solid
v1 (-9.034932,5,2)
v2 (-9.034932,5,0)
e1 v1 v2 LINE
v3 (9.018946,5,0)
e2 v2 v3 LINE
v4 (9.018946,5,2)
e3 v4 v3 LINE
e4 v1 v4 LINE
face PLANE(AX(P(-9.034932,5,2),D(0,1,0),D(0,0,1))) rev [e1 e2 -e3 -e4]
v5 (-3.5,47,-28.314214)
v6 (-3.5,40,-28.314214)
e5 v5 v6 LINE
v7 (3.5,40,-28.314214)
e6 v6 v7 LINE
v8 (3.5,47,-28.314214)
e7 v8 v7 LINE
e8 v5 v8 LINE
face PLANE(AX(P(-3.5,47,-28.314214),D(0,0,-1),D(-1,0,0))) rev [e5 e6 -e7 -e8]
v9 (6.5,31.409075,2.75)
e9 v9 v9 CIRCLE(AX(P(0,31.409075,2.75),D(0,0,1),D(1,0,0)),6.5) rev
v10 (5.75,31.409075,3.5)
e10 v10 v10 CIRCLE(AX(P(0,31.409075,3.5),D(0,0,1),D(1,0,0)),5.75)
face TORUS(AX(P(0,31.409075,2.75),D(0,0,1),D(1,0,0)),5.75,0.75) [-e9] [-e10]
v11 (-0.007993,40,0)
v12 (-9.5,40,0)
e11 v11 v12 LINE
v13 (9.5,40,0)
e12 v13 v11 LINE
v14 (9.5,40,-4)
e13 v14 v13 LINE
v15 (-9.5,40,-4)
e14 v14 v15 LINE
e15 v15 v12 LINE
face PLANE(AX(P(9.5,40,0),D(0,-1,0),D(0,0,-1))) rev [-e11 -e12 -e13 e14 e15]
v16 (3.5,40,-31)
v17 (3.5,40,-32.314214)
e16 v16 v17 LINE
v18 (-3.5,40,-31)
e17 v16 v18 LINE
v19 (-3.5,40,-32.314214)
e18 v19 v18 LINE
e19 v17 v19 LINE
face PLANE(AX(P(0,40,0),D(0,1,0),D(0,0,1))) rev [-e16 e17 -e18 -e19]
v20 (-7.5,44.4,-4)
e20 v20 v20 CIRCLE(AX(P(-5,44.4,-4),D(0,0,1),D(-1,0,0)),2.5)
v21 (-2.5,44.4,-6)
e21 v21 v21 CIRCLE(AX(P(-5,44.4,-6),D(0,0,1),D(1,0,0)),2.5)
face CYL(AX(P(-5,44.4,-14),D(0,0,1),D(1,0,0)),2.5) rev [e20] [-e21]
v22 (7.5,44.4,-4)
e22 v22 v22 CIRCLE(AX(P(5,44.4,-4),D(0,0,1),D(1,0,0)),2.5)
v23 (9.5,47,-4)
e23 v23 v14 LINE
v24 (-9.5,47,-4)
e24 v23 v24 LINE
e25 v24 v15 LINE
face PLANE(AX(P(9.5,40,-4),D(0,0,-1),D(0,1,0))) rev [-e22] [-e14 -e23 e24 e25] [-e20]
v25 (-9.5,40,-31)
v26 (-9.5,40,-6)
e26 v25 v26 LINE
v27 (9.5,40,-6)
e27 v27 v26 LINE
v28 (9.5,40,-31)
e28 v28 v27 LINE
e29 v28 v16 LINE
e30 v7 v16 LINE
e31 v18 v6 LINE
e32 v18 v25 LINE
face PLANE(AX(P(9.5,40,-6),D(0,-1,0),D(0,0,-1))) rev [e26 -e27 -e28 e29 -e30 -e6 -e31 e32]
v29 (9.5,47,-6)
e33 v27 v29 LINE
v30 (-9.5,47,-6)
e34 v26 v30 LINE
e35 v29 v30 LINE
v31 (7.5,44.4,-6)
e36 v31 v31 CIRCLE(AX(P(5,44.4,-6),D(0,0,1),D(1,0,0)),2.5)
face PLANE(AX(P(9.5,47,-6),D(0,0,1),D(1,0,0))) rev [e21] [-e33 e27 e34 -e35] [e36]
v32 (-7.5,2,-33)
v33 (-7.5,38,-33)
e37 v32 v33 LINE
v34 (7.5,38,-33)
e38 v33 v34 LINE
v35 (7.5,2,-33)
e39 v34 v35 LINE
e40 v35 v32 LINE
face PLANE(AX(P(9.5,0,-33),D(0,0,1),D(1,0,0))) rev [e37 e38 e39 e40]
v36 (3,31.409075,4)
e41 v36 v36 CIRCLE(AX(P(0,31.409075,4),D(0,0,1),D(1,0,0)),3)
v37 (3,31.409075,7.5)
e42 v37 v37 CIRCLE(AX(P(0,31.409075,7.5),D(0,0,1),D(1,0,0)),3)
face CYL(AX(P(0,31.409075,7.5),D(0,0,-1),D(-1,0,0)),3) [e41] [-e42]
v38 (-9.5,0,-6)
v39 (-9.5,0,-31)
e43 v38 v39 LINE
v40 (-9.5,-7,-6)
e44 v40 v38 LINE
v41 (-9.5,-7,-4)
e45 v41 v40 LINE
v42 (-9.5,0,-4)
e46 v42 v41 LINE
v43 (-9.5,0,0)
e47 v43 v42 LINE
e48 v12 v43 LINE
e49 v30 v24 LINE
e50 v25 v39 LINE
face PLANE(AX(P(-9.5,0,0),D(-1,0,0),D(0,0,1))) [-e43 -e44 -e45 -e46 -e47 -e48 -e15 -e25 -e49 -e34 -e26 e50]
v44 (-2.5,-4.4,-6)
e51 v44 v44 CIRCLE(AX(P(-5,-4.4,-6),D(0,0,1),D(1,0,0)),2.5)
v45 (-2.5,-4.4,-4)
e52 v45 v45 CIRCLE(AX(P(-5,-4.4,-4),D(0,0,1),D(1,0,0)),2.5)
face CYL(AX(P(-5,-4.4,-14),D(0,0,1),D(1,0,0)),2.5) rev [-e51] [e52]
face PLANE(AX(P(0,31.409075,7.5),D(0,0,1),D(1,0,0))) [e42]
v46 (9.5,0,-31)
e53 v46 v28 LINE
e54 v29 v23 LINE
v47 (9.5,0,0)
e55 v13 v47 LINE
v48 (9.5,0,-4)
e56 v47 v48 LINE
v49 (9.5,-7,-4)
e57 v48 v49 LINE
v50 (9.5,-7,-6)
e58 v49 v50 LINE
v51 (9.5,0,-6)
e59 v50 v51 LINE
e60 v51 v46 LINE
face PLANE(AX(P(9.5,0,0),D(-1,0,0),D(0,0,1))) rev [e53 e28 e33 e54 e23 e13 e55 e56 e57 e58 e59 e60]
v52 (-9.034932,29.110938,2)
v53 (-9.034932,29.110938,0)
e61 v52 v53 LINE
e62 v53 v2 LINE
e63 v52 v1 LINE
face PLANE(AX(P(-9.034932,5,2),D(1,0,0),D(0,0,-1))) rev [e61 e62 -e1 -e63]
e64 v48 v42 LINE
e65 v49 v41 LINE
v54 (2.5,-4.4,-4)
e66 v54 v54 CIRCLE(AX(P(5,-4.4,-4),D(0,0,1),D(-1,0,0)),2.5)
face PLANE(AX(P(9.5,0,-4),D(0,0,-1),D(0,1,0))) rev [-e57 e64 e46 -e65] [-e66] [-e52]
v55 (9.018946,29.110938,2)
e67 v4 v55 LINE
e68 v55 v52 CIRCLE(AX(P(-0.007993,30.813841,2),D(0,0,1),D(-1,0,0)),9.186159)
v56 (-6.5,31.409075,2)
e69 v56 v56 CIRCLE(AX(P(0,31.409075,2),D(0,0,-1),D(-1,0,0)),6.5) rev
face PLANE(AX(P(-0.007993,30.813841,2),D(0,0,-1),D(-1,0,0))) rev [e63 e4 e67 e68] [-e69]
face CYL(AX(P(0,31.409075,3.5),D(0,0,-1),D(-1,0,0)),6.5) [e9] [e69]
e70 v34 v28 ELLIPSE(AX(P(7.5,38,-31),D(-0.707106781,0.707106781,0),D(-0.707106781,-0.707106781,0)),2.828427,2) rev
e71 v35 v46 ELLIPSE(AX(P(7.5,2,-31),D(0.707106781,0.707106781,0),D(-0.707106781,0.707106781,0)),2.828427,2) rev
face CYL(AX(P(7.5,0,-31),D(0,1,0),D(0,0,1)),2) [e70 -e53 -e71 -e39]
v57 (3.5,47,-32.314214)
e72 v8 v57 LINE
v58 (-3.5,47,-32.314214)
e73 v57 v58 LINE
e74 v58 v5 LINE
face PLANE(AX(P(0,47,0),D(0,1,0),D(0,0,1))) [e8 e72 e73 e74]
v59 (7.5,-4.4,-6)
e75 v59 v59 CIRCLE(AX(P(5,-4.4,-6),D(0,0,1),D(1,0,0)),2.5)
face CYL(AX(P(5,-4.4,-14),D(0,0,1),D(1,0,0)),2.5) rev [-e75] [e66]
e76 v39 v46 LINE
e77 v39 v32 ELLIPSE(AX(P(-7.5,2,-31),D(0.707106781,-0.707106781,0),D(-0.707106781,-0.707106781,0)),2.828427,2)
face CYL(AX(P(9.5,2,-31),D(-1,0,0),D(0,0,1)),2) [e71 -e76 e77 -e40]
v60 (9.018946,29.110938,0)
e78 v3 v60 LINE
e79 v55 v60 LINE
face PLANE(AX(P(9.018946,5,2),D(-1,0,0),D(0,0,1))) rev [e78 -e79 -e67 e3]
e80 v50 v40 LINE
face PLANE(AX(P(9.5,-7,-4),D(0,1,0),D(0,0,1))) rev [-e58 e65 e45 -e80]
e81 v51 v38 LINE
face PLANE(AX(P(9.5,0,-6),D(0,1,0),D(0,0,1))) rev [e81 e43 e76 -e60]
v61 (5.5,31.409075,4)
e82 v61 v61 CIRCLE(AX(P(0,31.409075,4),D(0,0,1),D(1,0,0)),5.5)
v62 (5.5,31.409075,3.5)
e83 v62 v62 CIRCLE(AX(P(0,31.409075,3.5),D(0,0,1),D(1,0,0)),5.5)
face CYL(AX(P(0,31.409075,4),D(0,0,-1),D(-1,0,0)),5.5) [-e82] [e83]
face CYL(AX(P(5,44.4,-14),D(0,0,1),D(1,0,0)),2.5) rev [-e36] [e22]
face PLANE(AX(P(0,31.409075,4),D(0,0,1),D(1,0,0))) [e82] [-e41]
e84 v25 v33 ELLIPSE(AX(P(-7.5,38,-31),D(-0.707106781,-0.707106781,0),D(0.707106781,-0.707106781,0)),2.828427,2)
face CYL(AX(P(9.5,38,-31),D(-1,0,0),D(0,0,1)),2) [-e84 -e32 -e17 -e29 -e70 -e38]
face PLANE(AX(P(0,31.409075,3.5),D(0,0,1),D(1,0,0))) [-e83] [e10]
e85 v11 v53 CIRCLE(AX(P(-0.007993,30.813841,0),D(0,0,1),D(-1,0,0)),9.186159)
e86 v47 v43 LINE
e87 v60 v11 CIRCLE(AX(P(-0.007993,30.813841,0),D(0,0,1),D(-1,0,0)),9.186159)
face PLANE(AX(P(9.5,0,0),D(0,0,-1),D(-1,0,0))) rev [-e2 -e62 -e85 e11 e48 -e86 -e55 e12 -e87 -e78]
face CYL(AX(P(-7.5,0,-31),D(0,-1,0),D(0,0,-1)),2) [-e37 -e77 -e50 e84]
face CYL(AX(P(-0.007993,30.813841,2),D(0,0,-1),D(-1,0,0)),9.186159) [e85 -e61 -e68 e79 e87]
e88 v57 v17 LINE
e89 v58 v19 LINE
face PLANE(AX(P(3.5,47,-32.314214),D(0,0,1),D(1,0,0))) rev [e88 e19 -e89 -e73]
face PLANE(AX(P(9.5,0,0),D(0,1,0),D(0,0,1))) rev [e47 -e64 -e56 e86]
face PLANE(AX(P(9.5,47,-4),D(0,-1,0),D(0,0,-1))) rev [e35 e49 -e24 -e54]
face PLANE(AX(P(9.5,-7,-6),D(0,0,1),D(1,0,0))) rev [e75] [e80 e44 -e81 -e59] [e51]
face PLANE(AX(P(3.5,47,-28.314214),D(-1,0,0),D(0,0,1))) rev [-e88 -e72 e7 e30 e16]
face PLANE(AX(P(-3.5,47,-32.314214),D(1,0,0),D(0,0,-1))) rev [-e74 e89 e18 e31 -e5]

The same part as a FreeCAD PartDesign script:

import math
import FreeCAD as App
import Part
import Sketcher

V = App.Vector


def edges_at(feature, points):
    """Names of the edges that pass closest to the given points."""
    edges = feature.Shape.Edges
    near = lambda p: min(range(len(edges)), key=lambda i: edges[i].distToShape(Part.Vertex(*p))[0])
    return sorted({f"Edge{near(p) + 1}" for p in points})


def add_polygon(sketch, points):
    """Adds a closed chain of lines whose ends are joined by coincident constraints."""
    first, n = sketch.GeometryCount, len(points)
    for a, b in zip(points, points[1:] + points[:1]):
        sketch.addGeometry(Part.LineSegment(App.Vector(*a, 0), App.Vector(*b, 0)), False)
    for i in range(n):
        sketch.addConstraint(Sketcher.Constraint("Coincident", first + i, 2, first + (i + 1) % n, 1))

doc = App.newDocument("Part")
params = doc.addObject("Spreadsheet::Sheet", "Params")
for row, (alias, value) in enumerate([
    ("sketch1_width", "7 mm"),
    ("sketch1_width2", "40 mm"),
    ("sketch1_height", "4 mm"),
    ("sketch1_height2", "2 mm"),
    ("sketch1_height3", "27 mm"),
    ("pad1_length", "19 mm"),
    ("sketch2_diameter", "5 mm"),
    ("pocket1_length", "10 mm"),
    ("pad2_length", "2 mm"),
    ("fillet_radius", "2 mm"),
    ("sketch4_diameter", "13 mm"),
    ("pad3_length", "1.5 mm"),
    ("fillet2_radius", "0.75 mm"),
    ("sketch5_diameter", "11 mm"),
    ("pad4_length", "0.5 mm"),
    ("sketch6_diameter", "6 mm"),
    ("pad5_length", "3.5 mm"),
    ("sketch7_width", "7 mm"),
    ("sketch7_height", "4 mm"),
    ("pad6_length", "7 mm"),
], start=1):
    params.set(f"A{row}", alias)
    params.set(f"B{row}", "=" + value)
    params.setAlias(f"B{row}", alias)

body = doc.addObject("PartDesign::Body", "Body")

# Sketch on YZ plane
sketch1 = body.newObject("Sketcher::SketchObject", "Sketch")
sketch1.AttachmentSupport = (doc.getObject("YZ_Plane"), [""])
sketch1.MapMode = "FlatFace"
add_polygon(sketch1, [(0, 0), (0, -4), (-7, -4), (-7, -6), (0, -6), (0, -33), (40, -33), (40, -6), (47, -6), (47, -4), (40, -4), (40, 0)])  # lines 0-11
sketch1.addConstraint([
    Sketcher.Constraint("Vertical", 0),
    Sketcher.Constraint("Horizontal", 1),
    Sketcher.Constraint("Vertical", 2),
    Sketcher.Constraint("Horizontal", 3),
    Sketcher.Constraint("Vertical", 4),
    Sketcher.Constraint("Horizontal", 5),
    Sketcher.Constraint("Vertical", 6),
    Sketcher.Constraint("Horizontal", 7),
    Sketcher.Constraint("Vertical", 8),
    Sketcher.Constraint("Horizontal", 9),
    Sketcher.Constraint("Vertical", 10),
    Sketcher.Constraint("Horizontal", 11),
    Sketcher.Constraint("Coincident", 11, 2, -1, 1),
    Sketcher.Constraint("PointOnObject", 3, 2, -2),
    Sketcher.Constraint("Horizontal", 3, 2, 6, 2),
    Sketcher.Constraint("Horizontal", 1, 2, 8, 2),
    Sketcher.Constraint("Vertical", 6, 2, 9, 2),
    Sketcher.Constraint("Equal", 3, 7),
    Sketcher.Constraint("DistanceX", 1, 2, 1, 1, 7.0),
    Sketcher.Constraint("DistanceX", 5, 1, 5, 2, 40.0),
    Sketcher.Constraint("DistanceY", 0, 2, 0, 1, 4.0),
    Sketcher.Constraint("DistanceY", 2, 2, 2, 1, 2.0),
    Sketcher.Constraint("DistanceY", 4, 2, 4, 1, 27.0),
])
sketch1.setExpression("Constraints[30]", "Params.sketch1_width")
sketch1.setExpression("Constraints[31]", "Params.sketch1_width2")
sketch1.setExpression("Constraints[32]", "Params.sketch1_height")
sketch1.setExpression("Constraints[33]", "Params.sketch1_height2")
sketch1.setExpression("Constraints[34]", "Params.sketch1_height3")
pad1 = body.newObject("PartDesign::Pad", "Pad")
pad1.Profile = sketch1
pad1.setExpression("Length", "Params.pad1_length")
pad1.Midplane = True

# Sketch on XY plane
sketch2 = body.newObject("Sketcher::SketchObject", "Sketch001")
sketch2.AttachmentSupport = (doc.getObject("XY_Plane"), [""])
sketch2.MapMode = "FlatFace"
sketch2.AttachmentOffset = App.Placement(V(0, 0, -4), App.Rotation())
sketch2.addGeometry([
    Part.Circle(V(5, 44.4, 0), V(0, 0, 1), 2.5),
    Part.Circle(V(-5, 44.4, 0), V(0, 0, 1), 2.5),
    Part.Circle(V(5, -4.4, 0), V(0, 0, 1), 2.5),
    Part.Circle(V(-5, -4.4, 0), V(0, 0, 1), 2.5),
], False)
sketch2.addConstraint([
    Sketcher.Constraint("Equal", 0, 1),
    Sketcher.Constraint("Equal", 1, 2),
    Sketcher.Constraint("Equal", 2, 3),
    Sketcher.Constraint("Symmetric", 0, 3, 1, 3, -2),
    Sketcher.Constraint("Symmetric", 2, 3, 3, 3, -2),
    Sketcher.Constraint("Vertical", 0, 3, 2, 3),
    Sketcher.Constraint("Diameter", 0, 5.0),
    Sketcher.Constraint("DistanceX", -1, 1, 0, 3, 5.0),
    Sketcher.Constraint("DistanceY", -1, 1, 0, 3, 44.4),
    Sketcher.Constraint("DistanceY", 2, 3, -1, 1, 4.4),
])
sketch2.setExpression("Constraints[6]", "Params.sketch2_diameter")
pocket1 = body.newObject("PartDesign::Pocket", "Pocket")
pocket1.Profile = sketch2
pocket1.setExpression("Length", "Params.pocket1_length")

# Sketch on XY plane
sketch3 = body.newObject("Sketcher::SketchObject", "Sketch002")
sketch3.AttachmentSupport = (doc.getObject("XY_Plane"), [""])
sketch3.MapMode = "FlatFace"
sketch3.addGeometry([
    Part.LineSegment(V(-9, 5, 0), V(9, 5, 0)),
    Part.LineSegment(V(9, 5, 0), V(9, 29, 0)),
    Part.ArcOfCircle(Part.Circle(V(0, 31, 0), V(0, 0, 1), 9), math.radians(-11), math.radians(191)),
    Part.LineSegment(V(-9, 29, 0), V(-9, 5, 0)),
], False)
sketch3.addConstraint([
    Sketcher.Constraint("Coincident", 0, 2, 1, 1),
    Sketcher.Constraint("Coincident", 1, 2, 2, 1),
    Sketcher.Constraint("Coincident", 2, 2, 3, 1),
    Sketcher.Constraint("Coincident", 3, 2, 0, 1),
    Sketcher.Constraint("Horizontal", 0),
    Sketcher.Constraint("Vertical", 1),
    Sketcher.Constraint("Vertical", 3),
    Sketcher.Constraint("Horizontal", 1, 2, 2, 2),
    Sketcher.Constraint("DistanceY", -1, 1, 0, 2, 5.0),
    Sketcher.Constraint("Radius", 2, 9.186159),
    Sketcher.Constraint("DistanceX", 0, 1, 0, 2, 18.053878),
    Sketcher.Constraint("DistanceY", 1, 1, 1, 2, 24.110938),
    Sketcher.Constraint("DistanceX", 2, 3, -1, 1, 0.007993),
])
pad2 = body.newObject("PartDesign::Pad", "Pad001")
pad2.Profile = sketch3
pad2.setExpression("Length", "Params.pad2_length")
doc.recompute()

fillet = body.newObject("PartDesign::Fillet", "Fillet")
fillet.Base = (pad2, edges_at(pad2, [
    (-9.5, 20, -33),
    (0, 40, -33),
    (0, 0, -33),
    (9.5, 20, -33),
]))
fillet.setExpression("Radius", "Params.fillet_radius")

# Sketch on XY plane
sketch4 = body.newObject("Sketcher::SketchObject", "Sketch003")
sketch4.AttachmentSupport = (doc.getObject("XY_Plane"), [""])
sketch4.MapMode = "FlatFace"
sketch4.AttachmentOffset = App.Placement(V(0, 0, 2), App.Rotation())
sketch4.addGeometry(Part.Circle(V(0, 31, 0), V(0, 0, 1), 6), False)
sketch4.addConstraint([
    Sketcher.Constraint("PointOnObject", 0, 3, -2),
    Sketcher.Constraint("Diameter", 0, 13.0),
    Sketcher.Constraint("DistanceY", -1, 1, 0, 3, 31.409074),
])
sketch4.setExpression("Constraints[1]", "Params.sketch4_diameter")
pad3 = body.newObject("PartDesign::Pad", "Pad002")
pad3.Profile = sketch4
pad3.setExpression("Length", "Params.pad3_length")
doc.recompute()

fillet2 = body.newObject("PartDesign::Fillet", "Fillet001")
fillet2.Base = (pad3, edges_at(pad3, [(6.5, 31.409, 3.5)]))
fillet2.setExpression("Radius", "Params.fillet2_radius")

# Sketch on XY plane
sketch5 = body.newObject("Sketcher::SketchObject", "Sketch004")
sketch5.AttachmentSupport = (doc.getObject("XY_Plane"), [""])
sketch5.MapMode = "FlatFace"
sketch5.AttachmentOffset = App.Placement(V(0, 0, 3.5), App.Rotation())
sketch5.addGeometry(Part.Circle(V(0, 31, 0), V(0, 0, 1), 6), False)
sketch5.addConstraint([
    Sketcher.Constraint("PointOnObject", 0, 3, -2),
    Sketcher.Constraint("Diameter", 0, 11.0),
    Sketcher.Constraint("DistanceY", -1, 1, 0, 3, 31.409074),
])
sketch5.setExpression("Constraints[1]", "Params.sketch5_diameter")
pad4 = body.newObject("PartDesign::Pad", "Pad003")
pad4.Profile = sketch5
pad4.setExpression("Length", "Params.pad4_length")

# Sketch on XY plane
sketch6 = body.newObject("Sketcher::SketchObject", "Sketch005")
sketch6.AttachmentSupport = (doc.getObject("XY_Plane"), [""])
sketch6.MapMode = "FlatFace"
sketch6.AttachmentOffset = App.Placement(V(0, 0, 4), App.Rotation())
sketch6.addGeometry(Part.Circle(V(0, 31.4, 0), V(0, 0, 1), 3), False)
sketch6.addConstraint([
    Sketcher.Constraint("PointOnObject", 0, 3, -2),
    Sketcher.Constraint("Diameter", 0, 6.0),
    Sketcher.Constraint("DistanceY", -1, 1, 0, 3, 31.409074),
])
sketch6.setExpression("Constraints[1]", "Params.sketch6_diameter")
pad5 = body.newObject("PartDesign::Pad", "Pad004")
pad5.Profile = sketch6
pad5.setExpression("Length", "Params.pad5_length")

# Sketch on XZ plane
sketch7 = body.newObject("Sketcher::SketchObject", "Sketch006")
sketch7.AttachmentSupport = (doc.getObject("XZ_Plane"), [""])
sketch7.MapMode = "FlatFace"
sketch7.AttachmentOffset = App.Placement(V(0, 0, -40), App.Rotation())
add_polygon(sketch7, [(-3.5, -32.3), (-3.5, -28.3), (3.5, -28.3), (3.5, -32.3)])  # lines 0-3
sketch7.addConstraint([
    Sketcher.Constraint("Vertical", 0),
    Sketcher.Constraint("Horizontal", 1),
    Sketcher.Constraint("Vertical", 2),
    Sketcher.Constraint("Horizontal", 3),
    Sketcher.Constraint("DistanceX", 1, 1, 1, 2, 7.0),
    Sketcher.Constraint("DistanceY", 0, 1, 0, 2, 4.0),
    Sketcher.Constraint("DistanceX", 0, 2, -1, 1, 3.5),
    Sketcher.Constraint("DistanceY", 0, 2, -1, 1, 28.314214),
])
sketch7.setExpression("Constraints[8]", "Params.sketch7_width")
sketch7.setExpression("Constraints[9]", "Params.sketch7_height")
pad6 = body.newObject("PartDesign::Pad", "Pad005")
pad6.Profile = sketch7
pad6.setExpression("Length", "Params.pad6_length")
pad6.Reversed = True

doc.recompute()
